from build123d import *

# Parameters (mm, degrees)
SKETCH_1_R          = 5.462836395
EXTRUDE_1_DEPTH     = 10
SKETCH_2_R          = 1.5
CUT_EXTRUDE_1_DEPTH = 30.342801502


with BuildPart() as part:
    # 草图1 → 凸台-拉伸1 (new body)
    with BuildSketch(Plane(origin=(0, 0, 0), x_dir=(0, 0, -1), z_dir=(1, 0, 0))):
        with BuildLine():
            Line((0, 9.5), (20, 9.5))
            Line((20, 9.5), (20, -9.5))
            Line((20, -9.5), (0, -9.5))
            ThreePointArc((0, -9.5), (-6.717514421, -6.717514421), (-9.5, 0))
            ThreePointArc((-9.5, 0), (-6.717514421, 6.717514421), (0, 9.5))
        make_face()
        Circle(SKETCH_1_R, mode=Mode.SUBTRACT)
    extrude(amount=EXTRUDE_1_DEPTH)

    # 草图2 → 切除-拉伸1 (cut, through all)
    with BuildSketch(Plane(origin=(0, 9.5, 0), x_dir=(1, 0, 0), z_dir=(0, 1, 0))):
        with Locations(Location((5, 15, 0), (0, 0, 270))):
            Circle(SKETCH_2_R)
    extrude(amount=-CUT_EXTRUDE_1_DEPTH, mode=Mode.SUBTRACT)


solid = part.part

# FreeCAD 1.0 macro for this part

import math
import FreeCAD as App
import Part
import Sketcher
from FreeCAD import Vector

doc = App.newDocument("Part")
body = doc.addObject("PartDesign::Body", "Body")

sketch1 = body.newObject("Sketcher::SketchObject", "Sketch")
sketch1.AttachmentSupport = (doc.getObject("YZ_Plane"), [""])
sketch1.MapMode = "FlatFace"
sketch1.addGeometry([
    Part.LineSegment(Vector(10, -20, 0), Vector(10, 0, 0)),
    Part.ArcOfCircle(Part.Circle(Vector(0, 0, 0), Vector(0, 0, 1), 10), math.radians(0), math.radians(90)),
    Part.ArcOfCircle(Part.Circle(Vector(0, 0, 0), Vector(0, 0, 1), 10), math.radians(90), math.radians(180)),
    Part.LineSegment(Vector(-10, 0, 0), Vector(-10, -20, 0)),
    Part.LineSegment(Vector(-10, -20, 0), Vector(10, -20, 0)),
    Part.Circle(Vector(0, 0, 0), Vector(0, 0, 1), 5),
], False)
sketch1.addConstraint([
    Sketcher.Constraint("Tangent", 0, 2, 1, 1),
    Sketcher.Constraint("Tangent", 1, 2, 2, 1),
    Sketcher.Constraint("Tangent", 2, 2, 3, 1),
    Sketcher.Constraint("Coincident", 3, 2, 4, 1),
    Sketcher.Constraint("Coincident", 4, 2, 0, 1),
    Sketcher.Constraint("Vertical", 0),
    Sketcher.Constraint("Vertical", 3),
    Sketcher.Constraint("Horizontal", 4),
    Sketcher.Constraint("Coincident", 1, 3, -1, 1),
    Sketcher.Constraint("Coincident", 5, 3, -1, 1),
    Sketcher.Constraint("Equal", 1, 2),
    Sketcher.Constraint("PointOnObject", 1, 2, -2),
    Sketcher.Constraint("Radius", 1, 9.5),
    Sketcher.Constraint("DistanceY", 0, 1, 0, 2, 20.0),
    Sketcher.Constraint("Diameter", 5, 10.925673),
])
pad1 = body.newObject("PartDesign::Pad", "Pad")
pad1.Profile = sketch1
pad1.Length = 10

sketch2 = body.newObject("Sketcher::SketchObject", "Sketch001")
sketch2.AttachmentSupport = (doc.getObject("XZ_Plane"), [""])
sketch2.MapMode = "FlatFace"
sketch2.AttachmentOffset = App.Placement(Vector(0, 0, -9.5), App.Rotation())
sketch2.addGeometry(Part.Circle(Vector(5, -15, 0), Vector(0, 0, 1), 1.5), False)
sketch2.addConstraint([
    Sketcher.Constraint("Diameter", 0, 3.0),
    Sketcher.Constraint("DistanceX", -1, 1, 0, 3, 5.0),
    Sketcher.Constraint("DistanceY", 0, 3, -1, 1, 15.0),
])
pocket1 = body.newObject("PartDesign::Pocket", "Pocket")
pocket1.Profile = sketch2
pocket1.Type = "ThroughAll"
pocket1.Reversed = True

doc.recompute()
